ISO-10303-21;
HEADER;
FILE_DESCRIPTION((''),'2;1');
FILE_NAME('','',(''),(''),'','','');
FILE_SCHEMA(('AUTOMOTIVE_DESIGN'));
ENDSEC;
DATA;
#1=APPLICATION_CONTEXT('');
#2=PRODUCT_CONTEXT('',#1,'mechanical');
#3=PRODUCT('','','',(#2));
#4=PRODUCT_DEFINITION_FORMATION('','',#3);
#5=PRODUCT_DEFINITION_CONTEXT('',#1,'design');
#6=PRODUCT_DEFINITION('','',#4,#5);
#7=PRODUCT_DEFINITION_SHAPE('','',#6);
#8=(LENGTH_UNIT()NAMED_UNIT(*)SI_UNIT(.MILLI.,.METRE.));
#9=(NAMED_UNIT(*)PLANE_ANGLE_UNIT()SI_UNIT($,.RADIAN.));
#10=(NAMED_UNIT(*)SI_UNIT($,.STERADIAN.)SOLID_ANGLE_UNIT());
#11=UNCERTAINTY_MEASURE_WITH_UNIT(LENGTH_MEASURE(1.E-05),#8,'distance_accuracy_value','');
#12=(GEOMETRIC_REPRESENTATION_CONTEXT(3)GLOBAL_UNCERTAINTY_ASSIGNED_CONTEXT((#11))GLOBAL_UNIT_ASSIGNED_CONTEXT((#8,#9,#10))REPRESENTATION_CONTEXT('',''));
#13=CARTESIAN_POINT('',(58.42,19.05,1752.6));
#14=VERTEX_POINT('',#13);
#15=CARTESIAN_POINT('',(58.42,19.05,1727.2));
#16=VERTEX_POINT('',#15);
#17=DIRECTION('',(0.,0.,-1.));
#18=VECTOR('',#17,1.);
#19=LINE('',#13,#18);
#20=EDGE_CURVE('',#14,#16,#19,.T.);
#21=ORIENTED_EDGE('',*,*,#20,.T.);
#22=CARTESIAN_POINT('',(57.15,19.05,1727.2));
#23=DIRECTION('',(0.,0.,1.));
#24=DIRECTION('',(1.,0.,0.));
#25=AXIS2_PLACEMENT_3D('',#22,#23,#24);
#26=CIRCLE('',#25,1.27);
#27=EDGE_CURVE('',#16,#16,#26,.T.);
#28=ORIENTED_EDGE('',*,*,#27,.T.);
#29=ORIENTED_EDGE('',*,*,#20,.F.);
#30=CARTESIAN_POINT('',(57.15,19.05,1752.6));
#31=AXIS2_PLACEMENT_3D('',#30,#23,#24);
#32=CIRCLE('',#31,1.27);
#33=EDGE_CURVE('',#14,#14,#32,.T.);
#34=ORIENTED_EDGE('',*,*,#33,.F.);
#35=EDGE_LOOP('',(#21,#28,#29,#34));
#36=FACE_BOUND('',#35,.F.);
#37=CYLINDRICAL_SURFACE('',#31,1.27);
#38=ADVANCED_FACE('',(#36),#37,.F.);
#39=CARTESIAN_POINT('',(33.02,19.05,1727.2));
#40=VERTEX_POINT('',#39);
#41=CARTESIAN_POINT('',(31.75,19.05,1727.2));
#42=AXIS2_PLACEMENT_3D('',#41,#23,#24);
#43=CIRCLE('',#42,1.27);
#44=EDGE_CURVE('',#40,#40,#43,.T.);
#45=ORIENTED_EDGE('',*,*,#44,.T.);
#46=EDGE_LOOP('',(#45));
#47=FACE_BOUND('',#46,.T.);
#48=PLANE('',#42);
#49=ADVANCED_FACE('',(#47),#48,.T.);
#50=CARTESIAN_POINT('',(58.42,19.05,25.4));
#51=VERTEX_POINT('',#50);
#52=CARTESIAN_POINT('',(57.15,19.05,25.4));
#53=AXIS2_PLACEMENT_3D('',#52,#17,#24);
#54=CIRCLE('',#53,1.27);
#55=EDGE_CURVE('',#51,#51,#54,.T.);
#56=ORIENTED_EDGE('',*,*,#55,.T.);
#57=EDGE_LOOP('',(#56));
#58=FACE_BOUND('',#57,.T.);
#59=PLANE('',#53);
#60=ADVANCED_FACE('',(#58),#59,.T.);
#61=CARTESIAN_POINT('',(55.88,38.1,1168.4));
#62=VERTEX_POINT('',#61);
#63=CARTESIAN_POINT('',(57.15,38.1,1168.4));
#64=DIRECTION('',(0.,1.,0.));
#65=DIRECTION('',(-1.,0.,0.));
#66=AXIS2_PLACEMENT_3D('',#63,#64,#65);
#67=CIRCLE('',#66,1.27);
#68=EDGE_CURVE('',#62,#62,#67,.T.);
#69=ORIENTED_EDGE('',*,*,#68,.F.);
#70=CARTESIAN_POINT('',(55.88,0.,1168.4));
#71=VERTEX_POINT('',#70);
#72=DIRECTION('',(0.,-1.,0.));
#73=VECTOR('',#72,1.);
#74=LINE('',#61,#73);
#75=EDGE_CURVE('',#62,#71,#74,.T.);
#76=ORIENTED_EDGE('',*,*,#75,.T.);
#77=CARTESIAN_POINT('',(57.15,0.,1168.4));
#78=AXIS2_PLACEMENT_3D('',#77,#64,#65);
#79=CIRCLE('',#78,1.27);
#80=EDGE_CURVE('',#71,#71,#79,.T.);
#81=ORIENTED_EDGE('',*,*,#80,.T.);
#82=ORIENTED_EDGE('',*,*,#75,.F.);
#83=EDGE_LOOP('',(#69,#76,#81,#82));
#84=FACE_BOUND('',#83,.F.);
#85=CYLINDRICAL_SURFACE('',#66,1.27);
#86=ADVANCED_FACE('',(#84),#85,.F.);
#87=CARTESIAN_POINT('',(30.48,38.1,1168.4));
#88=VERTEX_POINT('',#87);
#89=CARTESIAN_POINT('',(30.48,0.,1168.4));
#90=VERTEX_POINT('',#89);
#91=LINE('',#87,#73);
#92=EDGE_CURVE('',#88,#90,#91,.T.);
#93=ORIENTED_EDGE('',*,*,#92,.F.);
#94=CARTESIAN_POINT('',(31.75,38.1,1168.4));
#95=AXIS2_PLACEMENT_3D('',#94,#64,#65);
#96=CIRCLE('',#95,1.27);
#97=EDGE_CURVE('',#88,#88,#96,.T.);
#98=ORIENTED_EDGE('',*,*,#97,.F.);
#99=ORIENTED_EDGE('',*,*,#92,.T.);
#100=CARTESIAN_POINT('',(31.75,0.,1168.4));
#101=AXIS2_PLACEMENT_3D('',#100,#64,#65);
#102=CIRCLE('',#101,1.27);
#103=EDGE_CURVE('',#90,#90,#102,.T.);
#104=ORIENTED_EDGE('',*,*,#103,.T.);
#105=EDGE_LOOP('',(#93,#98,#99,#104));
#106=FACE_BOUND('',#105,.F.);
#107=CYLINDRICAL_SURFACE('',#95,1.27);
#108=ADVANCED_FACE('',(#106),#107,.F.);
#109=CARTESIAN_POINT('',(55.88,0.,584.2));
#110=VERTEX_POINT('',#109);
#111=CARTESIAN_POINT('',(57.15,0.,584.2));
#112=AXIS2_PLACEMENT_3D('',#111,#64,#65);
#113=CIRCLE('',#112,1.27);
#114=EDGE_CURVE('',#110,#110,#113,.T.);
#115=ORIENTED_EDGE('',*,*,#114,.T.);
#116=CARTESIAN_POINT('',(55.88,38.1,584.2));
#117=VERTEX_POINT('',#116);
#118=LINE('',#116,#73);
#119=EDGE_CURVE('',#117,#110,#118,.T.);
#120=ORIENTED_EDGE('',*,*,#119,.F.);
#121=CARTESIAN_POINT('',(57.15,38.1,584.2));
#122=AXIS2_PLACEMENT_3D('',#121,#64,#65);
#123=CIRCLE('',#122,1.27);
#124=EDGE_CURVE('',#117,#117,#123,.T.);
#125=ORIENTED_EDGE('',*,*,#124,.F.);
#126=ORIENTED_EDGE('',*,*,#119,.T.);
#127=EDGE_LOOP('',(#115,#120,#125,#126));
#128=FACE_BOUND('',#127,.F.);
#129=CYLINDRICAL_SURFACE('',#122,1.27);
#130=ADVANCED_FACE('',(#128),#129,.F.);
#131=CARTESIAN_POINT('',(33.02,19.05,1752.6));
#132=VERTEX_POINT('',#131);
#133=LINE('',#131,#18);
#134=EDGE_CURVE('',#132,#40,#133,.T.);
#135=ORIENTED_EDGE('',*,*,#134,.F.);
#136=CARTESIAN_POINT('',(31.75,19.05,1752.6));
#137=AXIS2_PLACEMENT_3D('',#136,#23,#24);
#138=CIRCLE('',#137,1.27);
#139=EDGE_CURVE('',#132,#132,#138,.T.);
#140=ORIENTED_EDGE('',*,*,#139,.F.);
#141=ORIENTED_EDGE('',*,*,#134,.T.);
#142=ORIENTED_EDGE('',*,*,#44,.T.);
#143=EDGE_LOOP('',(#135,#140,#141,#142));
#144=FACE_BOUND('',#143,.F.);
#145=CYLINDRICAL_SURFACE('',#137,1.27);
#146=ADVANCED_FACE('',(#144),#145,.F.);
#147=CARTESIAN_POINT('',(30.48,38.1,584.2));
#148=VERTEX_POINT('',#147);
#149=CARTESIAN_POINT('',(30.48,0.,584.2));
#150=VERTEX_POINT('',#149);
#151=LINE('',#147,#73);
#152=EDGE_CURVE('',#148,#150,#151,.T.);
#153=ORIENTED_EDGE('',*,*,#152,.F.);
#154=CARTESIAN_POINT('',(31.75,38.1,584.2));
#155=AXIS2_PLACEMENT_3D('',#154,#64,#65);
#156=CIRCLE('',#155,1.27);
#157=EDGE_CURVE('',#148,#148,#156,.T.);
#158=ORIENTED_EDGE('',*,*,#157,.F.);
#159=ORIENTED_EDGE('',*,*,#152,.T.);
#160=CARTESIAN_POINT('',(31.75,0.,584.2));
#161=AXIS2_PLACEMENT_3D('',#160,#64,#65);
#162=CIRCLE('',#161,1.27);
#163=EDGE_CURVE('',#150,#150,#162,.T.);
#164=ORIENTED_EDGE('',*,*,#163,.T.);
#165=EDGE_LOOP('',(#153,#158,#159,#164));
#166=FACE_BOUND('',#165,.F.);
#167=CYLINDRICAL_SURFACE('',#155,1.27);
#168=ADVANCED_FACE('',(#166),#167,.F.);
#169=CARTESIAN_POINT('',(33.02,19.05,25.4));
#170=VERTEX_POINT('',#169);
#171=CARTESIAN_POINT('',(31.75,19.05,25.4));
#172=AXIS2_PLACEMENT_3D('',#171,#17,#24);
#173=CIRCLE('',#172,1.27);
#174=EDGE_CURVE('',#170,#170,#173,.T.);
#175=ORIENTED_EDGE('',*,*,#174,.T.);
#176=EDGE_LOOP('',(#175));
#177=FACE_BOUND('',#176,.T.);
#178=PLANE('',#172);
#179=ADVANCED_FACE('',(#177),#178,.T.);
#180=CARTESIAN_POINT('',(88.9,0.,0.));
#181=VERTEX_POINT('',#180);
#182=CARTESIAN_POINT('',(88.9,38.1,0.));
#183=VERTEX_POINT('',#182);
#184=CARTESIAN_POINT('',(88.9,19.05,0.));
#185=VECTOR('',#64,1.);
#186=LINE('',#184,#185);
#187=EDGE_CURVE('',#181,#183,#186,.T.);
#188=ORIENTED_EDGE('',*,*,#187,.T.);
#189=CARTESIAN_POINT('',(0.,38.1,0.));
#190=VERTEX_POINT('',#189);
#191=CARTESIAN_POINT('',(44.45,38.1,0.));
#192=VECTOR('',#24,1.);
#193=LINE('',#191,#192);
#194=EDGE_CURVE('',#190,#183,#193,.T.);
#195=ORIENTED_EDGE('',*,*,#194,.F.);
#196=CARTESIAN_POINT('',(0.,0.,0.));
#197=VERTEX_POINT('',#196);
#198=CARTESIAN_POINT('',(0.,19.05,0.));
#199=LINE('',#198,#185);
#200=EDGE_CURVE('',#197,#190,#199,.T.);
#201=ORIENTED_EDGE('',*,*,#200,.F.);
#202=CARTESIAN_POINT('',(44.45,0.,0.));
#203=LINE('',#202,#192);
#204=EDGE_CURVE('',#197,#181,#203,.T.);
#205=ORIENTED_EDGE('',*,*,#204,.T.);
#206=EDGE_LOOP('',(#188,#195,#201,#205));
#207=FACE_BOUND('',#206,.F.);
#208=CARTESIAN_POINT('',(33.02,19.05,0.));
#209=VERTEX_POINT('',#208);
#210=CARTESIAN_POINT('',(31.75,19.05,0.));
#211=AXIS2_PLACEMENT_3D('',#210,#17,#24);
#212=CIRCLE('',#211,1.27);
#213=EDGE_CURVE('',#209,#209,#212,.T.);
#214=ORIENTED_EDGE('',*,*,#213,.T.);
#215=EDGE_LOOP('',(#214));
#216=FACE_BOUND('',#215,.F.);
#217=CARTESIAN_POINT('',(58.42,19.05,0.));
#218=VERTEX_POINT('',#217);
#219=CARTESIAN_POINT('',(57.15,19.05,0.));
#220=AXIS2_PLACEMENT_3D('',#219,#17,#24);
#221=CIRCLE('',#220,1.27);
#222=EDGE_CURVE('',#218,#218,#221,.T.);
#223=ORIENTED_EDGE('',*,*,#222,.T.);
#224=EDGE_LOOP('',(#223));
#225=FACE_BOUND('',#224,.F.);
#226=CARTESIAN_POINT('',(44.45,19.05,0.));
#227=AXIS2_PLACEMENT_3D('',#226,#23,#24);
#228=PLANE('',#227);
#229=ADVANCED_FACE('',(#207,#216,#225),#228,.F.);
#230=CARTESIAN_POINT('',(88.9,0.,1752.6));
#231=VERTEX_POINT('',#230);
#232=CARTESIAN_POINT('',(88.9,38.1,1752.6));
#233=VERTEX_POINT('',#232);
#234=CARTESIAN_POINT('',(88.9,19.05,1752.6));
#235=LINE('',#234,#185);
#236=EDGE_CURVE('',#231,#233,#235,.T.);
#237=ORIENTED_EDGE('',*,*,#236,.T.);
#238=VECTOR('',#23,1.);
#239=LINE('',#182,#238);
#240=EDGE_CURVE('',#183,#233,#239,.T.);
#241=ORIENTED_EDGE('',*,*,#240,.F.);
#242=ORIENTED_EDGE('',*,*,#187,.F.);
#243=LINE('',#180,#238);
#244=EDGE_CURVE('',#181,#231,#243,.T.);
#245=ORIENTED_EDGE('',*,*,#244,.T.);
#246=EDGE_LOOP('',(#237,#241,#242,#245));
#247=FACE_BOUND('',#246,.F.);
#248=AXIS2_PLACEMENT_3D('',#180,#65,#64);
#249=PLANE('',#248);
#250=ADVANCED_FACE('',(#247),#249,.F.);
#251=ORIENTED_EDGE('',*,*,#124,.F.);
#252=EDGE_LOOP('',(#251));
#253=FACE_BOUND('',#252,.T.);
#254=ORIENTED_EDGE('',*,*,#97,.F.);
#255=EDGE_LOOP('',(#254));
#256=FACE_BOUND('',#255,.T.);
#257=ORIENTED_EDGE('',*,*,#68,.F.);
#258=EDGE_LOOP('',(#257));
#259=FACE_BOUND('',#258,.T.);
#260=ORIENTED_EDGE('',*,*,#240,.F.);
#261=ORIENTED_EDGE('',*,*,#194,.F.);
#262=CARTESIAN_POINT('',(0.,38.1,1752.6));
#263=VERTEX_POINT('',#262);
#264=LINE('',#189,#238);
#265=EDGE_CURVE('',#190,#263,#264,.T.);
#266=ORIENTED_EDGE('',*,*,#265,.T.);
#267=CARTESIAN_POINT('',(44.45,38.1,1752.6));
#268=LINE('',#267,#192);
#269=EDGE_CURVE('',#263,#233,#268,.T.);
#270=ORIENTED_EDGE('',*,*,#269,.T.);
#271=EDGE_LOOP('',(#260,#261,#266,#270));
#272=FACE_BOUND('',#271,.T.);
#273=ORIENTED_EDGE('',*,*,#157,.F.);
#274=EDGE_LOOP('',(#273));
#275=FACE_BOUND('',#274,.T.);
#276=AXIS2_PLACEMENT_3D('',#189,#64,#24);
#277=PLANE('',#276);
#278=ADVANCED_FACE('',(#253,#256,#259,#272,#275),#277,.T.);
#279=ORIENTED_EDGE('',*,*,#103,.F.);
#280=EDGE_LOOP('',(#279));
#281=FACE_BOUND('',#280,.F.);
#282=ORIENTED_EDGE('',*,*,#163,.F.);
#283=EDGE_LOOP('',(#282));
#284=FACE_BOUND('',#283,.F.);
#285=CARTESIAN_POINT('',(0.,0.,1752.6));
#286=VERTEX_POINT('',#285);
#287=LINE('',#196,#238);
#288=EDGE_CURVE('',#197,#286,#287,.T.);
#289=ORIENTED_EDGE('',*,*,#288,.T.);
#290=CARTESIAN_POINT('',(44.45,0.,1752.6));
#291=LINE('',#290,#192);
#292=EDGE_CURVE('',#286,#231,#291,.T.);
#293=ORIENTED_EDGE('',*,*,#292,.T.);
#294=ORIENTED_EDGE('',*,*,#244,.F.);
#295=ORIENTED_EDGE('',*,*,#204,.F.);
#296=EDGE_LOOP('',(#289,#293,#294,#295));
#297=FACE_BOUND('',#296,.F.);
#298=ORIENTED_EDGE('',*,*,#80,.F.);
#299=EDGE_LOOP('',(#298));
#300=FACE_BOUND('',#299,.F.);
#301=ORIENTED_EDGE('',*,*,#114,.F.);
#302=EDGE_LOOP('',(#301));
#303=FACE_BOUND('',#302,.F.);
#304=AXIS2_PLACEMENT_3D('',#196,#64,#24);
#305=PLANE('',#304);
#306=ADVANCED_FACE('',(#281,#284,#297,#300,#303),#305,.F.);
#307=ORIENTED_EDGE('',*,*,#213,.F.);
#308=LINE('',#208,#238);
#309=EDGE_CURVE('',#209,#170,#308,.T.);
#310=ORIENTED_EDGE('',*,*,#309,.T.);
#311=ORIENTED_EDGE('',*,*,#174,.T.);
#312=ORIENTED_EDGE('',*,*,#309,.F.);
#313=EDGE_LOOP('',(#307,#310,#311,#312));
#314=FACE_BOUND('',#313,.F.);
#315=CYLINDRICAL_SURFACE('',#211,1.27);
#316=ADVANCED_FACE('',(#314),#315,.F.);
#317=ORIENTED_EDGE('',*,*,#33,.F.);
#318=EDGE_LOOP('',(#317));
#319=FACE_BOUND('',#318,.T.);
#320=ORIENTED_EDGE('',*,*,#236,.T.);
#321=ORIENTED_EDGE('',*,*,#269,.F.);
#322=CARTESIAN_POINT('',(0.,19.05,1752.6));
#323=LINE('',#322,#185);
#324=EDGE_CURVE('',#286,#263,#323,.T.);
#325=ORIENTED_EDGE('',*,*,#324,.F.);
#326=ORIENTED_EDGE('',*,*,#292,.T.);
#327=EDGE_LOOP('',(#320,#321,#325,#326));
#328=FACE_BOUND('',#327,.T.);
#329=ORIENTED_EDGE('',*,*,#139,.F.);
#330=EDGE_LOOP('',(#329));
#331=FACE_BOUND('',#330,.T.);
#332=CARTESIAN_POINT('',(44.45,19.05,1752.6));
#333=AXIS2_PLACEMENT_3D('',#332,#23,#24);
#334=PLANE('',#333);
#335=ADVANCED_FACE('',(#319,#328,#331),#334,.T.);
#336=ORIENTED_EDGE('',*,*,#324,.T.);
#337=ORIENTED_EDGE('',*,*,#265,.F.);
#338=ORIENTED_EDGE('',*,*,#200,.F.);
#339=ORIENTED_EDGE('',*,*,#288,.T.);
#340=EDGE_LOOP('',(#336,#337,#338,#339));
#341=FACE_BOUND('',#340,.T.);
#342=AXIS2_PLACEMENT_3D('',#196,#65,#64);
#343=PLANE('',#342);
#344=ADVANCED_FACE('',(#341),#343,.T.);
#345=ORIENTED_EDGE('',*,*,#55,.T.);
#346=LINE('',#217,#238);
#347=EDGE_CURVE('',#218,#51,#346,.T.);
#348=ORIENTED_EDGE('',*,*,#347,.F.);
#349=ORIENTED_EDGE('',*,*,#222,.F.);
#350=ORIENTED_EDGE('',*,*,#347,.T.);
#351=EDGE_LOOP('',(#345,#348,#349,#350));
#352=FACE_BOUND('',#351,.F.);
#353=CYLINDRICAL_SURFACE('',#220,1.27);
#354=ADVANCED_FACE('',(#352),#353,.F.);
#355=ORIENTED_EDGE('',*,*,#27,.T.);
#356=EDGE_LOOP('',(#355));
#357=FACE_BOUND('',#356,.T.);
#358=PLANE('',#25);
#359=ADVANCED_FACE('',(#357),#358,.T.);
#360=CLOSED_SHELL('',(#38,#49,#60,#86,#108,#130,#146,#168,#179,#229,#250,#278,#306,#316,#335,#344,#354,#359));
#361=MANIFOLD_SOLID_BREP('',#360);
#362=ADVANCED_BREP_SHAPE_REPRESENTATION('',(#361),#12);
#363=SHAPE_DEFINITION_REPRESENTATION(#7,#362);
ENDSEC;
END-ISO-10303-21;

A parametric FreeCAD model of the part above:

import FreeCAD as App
import Part
import Sketcher

V = App.Vector
Q = App.Units.Quantity

doc = App.newDocument("Part")
body = doc.addObject("PartDesign::Body", "Body")
body.AllowCompound = True

sketch1 = body.newObject("Sketcher::SketchObject", "Sketch")
sketch1.AttachmentSupport = (doc.getObject("XY_Plane"), [""])
sketch1.MapMode = "FlatFace"
sketch1.addGeometry(Part.Circle(V(-57.15, 584.2, 0), V(0, 0, 1), 1.27), False)
sketch1.addGeometry(Part.Circle(V(-31.75, 584.2, 0), V(0, 0, 1), 1.27), False)
sketch1.addGeometry(Part.Circle(V(-57.15, 1168.4, 0), V(0, 0, 1), 1.27), False)
sketch1.addGeometry(Part.Circle(V(-31.75, 1168.4, 0), V(0, 0, 1), 1.27), False)
sketch1.addConstraint(Sketcher.Constraint("Equal", 0, 1))
sketch1.addConstraint(Sketcher.Constraint("Equal", 1, 2))
sketch1.addConstraint(Sketcher.Constraint("Equal", 2, 3))
sketch1.addConstraint(Sketcher.Constraint("Horizontal", 0, 3, 1, 3))
sketch1.addConstraint(Sketcher.Constraint("Horizontal", 2, 3, 3, 3))
sketch1.addConstraint(Sketcher.Constraint("Vertical", 0, 3, 2, 3))
sketch1.addConstraint(Sketcher.Constraint("Vertical", 1, 3, 3, 3))
sketch1.addConstraint(Sketcher.Constraint("Diameter", 0, Q("0.1 in")))
sketch1.addConstraint(Sketcher.Constraint("DistanceY", -1, 1, 0, 3, Q("23 in")))
sketch1.addConstraint(Sketcher.Constraint("DistanceY", -1, 1, 2, 3, Q("46 in")))
sketch1.addConstraint(Sketcher.Constraint("DistanceX", 0, 3, 1, 3, Q("1 in")))
sketch1.addConstraint(Sketcher.Constraint("DistanceX", 0, 3, -1, 1, Q("2.25 in")))
pad1 = body.newObject("PartDesign::Pad", "Pad")
pad1.Profile = sketch1
pad1.Length = Q("1.5 in")
pad1.Reversed = True
body2 = doc.addObject("PartDesign::Body", "Body001")
body2.AllowCompound = True
doc.recompute()

body.Placement = App.Placement(V(0, 0, 0), App.Rotation(V(1, 0, 0), 90))
boolean = body2.newObject("PartDesign::Boolean", "Boolean")
boolean.Type = "Fuse"
boolean.addObjects([body])
body3 = doc.addObject("PartDesign::Body", "Body002")
body3.AllowCompound = True
doc.recompute()

body2.Placement = App.Placement(V(0, 38.1, 0), App.Rotation(V(0, 0, 1), 180))
boolean2 = body3.newObject("PartDesign::Boolean", "Boolean001")
boolean2.Type = "Fuse"
boolean2.addObjects([body2])
body4 = doc.addObject("PartDesign::Body", "Body003")
body4.AllowCompound = True

sketch2 = body4.newObject("Sketcher::SketchObject", "Sketch001")
sketch2.AttachmentSupport = (doc.getObject("XY_Plane003"), [""])
sketch2.MapMode = "FlatFace"
sketch2.addGeometry(Part.Circle(V(31.75, 19.05, 0), V(0, 0, 1), 1.27), False)
sketch2.addGeometry(Part.Circle(V(57.15, 19.05, 0), V(0, 0, 1), 1.27), False)
sketch2.addConstraint(Sketcher.Constraint("Equal", 0, 1))
sketch2.addConstraint(Sketcher.Constraint("Horizontal", 0, 3, 1, 3))
sketch2.addConstraint(Sketcher.Constraint("Diameter", 0, Q("0.1 in")))
sketch2.addConstraint(Sketcher.Constraint("DistanceX", 0, 3, 1, 3, Q("1 in")))
sketch2.addConstraint(Sketcher.Constraint("DistanceX", -1, 1, 0, 3, Q("1.25 in")))
sketch2.addConstraint(Sketcher.Constraint("DistanceY", -1, 1, 0, 3, Q("0.75 in")))
pad2 = body4.newObject("PartDesign::Pad", "Pad001")
pad2.Profile = sketch2
pad2.Length = Q("1 in")
body5 = doc.addObject("PartDesign::Body", "Body004")
body5.AllowCompound = True

sketch3 = body5.newObject("Sketcher::SketchObject", "Sketch002")
sketch3.AttachmentSupport = (doc.getObject("XY_Plane004"), [""])
sketch3.MapMode = "FlatFace"
sketch3.AttachmentOffset = App.Placement(V(0, 0, 69 * 25.4), App.Rotation())
sketch3.addGeometry(Part.Circle(V(31.75, 19.05, 0), V(0, 0, 1), 1.27), False)
sketch3.addGeometry(Part.Circle(V(57.15, 19.05, 0), V(0, 0, 1), 1.27), False)
sketch3.addConstraint(Sketcher.Constraint("Equal", 0, 1))
sketch3.addConstraint(Sketcher.Constraint("Horizontal", 0, 3, 1, 3))
sketch3.addConstraint(Sketcher.Constraint("Diameter", 0, Q("0.1 in")))
sketch3.addConstraint(Sketcher.Constraint("DistanceX", 0, 3, 1, 3, Q("1 in")))
sketch3.addConstraint(Sketcher.Constraint("DistanceX", -1, 1, 0, 3, Q("1.25 in")))
sketch3.addConstraint(Sketcher.Constraint("DistanceY", -1, 1, 0, 3, Q("0.75 in")))
pad3 = body5.newObject("PartDesign::Pad", "Pad002")
pad3.Profile = sketch3
pad3.Length = Q("1 in")
pad3.Reversed = True
body6 = doc.addObject("PartDesign::Body", "Body005")

sketch4 = body6.newObject("Sketcher::SketchObject", "Sketch003")
sketch4.AttachmentSupport = (doc.getObject("XY_Plane005"), [""])
sketch4.MapMode = "FlatFace"
sketch4.addGeometry(Part.LineSegment(V(0, 38.1, 0), V(0, 0, 0)), False)
sketch4.addGeometry(Part.LineSegment(V(0, 0, 0), V(88.9, 0, 0)), False)
sketch4.addGeometry(Part.LineSegment(V(88.9, 0, 0), V(88.9, 38.1, 0)), False)
sketch4.addGeometry(Part.LineSegment(V(88.9, 38.1, 0), V(0, 38.1, 0)), False)
sketch4.addConstraint(Sketcher.Constraint("Coincident", 0, 2, 1, 1))
sketch4.addConstraint(Sketcher.Constraint("Coincident", 1, 2, 2, 1))
sketch4.addConstraint(Sketcher.Constraint("Coincident", 2, 2, 3, 1))
sketch4.addConstraint(Sketcher.Constraint("Coincident", 3, 2, 0, 1))
sketch4.addConstraint(Sketcher.Constraint("Vertical", 0))
sketch4.addConstraint(Sketcher.Constraint("Horizontal", 1))
sketch4.addConstraint(Sketcher.Constraint("Vertical", 2))
sketch4.addConstraint(Sketcher.Constraint("Horizontal", 3))
sketch4.addConstraint(Sketcher.Constraint("Coincident", 0, 2, -1, 1))
sketch4.addConstraint(Sketcher.Constraint("DistanceX", 1, 1, 1, 2, Q("3.5 in")))
sketch4.addConstraint(Sketcher.Constraint("DistanceY", 0, 2, 0, 1, Q("1.5 in")))
pad4 = body6.newObject("PartDesign::Pad", "Pad003")
pad4.Profile = sketch4
pad4.Length = Q("69 in")
doc.recompute()

boolean3 = body6.newObject("PartDesign::Boolean", "Boolean002")
boolean3.Type = "Cut"
boolean3.addObjects([body5])
doc.recompute()

boolean4 = body6.newObject("PartDesign::Boolean", "Boolean003")
boolean4.Type = "Cut"
boolean4.addObjects([body4])
doc.recompute()

boolean5 = body6.newObject("PartDesign::Boolean", "Boolean004")
boolean5.Type = "Cut"
boolean5.addObjects([body3])

doc.recompute()
